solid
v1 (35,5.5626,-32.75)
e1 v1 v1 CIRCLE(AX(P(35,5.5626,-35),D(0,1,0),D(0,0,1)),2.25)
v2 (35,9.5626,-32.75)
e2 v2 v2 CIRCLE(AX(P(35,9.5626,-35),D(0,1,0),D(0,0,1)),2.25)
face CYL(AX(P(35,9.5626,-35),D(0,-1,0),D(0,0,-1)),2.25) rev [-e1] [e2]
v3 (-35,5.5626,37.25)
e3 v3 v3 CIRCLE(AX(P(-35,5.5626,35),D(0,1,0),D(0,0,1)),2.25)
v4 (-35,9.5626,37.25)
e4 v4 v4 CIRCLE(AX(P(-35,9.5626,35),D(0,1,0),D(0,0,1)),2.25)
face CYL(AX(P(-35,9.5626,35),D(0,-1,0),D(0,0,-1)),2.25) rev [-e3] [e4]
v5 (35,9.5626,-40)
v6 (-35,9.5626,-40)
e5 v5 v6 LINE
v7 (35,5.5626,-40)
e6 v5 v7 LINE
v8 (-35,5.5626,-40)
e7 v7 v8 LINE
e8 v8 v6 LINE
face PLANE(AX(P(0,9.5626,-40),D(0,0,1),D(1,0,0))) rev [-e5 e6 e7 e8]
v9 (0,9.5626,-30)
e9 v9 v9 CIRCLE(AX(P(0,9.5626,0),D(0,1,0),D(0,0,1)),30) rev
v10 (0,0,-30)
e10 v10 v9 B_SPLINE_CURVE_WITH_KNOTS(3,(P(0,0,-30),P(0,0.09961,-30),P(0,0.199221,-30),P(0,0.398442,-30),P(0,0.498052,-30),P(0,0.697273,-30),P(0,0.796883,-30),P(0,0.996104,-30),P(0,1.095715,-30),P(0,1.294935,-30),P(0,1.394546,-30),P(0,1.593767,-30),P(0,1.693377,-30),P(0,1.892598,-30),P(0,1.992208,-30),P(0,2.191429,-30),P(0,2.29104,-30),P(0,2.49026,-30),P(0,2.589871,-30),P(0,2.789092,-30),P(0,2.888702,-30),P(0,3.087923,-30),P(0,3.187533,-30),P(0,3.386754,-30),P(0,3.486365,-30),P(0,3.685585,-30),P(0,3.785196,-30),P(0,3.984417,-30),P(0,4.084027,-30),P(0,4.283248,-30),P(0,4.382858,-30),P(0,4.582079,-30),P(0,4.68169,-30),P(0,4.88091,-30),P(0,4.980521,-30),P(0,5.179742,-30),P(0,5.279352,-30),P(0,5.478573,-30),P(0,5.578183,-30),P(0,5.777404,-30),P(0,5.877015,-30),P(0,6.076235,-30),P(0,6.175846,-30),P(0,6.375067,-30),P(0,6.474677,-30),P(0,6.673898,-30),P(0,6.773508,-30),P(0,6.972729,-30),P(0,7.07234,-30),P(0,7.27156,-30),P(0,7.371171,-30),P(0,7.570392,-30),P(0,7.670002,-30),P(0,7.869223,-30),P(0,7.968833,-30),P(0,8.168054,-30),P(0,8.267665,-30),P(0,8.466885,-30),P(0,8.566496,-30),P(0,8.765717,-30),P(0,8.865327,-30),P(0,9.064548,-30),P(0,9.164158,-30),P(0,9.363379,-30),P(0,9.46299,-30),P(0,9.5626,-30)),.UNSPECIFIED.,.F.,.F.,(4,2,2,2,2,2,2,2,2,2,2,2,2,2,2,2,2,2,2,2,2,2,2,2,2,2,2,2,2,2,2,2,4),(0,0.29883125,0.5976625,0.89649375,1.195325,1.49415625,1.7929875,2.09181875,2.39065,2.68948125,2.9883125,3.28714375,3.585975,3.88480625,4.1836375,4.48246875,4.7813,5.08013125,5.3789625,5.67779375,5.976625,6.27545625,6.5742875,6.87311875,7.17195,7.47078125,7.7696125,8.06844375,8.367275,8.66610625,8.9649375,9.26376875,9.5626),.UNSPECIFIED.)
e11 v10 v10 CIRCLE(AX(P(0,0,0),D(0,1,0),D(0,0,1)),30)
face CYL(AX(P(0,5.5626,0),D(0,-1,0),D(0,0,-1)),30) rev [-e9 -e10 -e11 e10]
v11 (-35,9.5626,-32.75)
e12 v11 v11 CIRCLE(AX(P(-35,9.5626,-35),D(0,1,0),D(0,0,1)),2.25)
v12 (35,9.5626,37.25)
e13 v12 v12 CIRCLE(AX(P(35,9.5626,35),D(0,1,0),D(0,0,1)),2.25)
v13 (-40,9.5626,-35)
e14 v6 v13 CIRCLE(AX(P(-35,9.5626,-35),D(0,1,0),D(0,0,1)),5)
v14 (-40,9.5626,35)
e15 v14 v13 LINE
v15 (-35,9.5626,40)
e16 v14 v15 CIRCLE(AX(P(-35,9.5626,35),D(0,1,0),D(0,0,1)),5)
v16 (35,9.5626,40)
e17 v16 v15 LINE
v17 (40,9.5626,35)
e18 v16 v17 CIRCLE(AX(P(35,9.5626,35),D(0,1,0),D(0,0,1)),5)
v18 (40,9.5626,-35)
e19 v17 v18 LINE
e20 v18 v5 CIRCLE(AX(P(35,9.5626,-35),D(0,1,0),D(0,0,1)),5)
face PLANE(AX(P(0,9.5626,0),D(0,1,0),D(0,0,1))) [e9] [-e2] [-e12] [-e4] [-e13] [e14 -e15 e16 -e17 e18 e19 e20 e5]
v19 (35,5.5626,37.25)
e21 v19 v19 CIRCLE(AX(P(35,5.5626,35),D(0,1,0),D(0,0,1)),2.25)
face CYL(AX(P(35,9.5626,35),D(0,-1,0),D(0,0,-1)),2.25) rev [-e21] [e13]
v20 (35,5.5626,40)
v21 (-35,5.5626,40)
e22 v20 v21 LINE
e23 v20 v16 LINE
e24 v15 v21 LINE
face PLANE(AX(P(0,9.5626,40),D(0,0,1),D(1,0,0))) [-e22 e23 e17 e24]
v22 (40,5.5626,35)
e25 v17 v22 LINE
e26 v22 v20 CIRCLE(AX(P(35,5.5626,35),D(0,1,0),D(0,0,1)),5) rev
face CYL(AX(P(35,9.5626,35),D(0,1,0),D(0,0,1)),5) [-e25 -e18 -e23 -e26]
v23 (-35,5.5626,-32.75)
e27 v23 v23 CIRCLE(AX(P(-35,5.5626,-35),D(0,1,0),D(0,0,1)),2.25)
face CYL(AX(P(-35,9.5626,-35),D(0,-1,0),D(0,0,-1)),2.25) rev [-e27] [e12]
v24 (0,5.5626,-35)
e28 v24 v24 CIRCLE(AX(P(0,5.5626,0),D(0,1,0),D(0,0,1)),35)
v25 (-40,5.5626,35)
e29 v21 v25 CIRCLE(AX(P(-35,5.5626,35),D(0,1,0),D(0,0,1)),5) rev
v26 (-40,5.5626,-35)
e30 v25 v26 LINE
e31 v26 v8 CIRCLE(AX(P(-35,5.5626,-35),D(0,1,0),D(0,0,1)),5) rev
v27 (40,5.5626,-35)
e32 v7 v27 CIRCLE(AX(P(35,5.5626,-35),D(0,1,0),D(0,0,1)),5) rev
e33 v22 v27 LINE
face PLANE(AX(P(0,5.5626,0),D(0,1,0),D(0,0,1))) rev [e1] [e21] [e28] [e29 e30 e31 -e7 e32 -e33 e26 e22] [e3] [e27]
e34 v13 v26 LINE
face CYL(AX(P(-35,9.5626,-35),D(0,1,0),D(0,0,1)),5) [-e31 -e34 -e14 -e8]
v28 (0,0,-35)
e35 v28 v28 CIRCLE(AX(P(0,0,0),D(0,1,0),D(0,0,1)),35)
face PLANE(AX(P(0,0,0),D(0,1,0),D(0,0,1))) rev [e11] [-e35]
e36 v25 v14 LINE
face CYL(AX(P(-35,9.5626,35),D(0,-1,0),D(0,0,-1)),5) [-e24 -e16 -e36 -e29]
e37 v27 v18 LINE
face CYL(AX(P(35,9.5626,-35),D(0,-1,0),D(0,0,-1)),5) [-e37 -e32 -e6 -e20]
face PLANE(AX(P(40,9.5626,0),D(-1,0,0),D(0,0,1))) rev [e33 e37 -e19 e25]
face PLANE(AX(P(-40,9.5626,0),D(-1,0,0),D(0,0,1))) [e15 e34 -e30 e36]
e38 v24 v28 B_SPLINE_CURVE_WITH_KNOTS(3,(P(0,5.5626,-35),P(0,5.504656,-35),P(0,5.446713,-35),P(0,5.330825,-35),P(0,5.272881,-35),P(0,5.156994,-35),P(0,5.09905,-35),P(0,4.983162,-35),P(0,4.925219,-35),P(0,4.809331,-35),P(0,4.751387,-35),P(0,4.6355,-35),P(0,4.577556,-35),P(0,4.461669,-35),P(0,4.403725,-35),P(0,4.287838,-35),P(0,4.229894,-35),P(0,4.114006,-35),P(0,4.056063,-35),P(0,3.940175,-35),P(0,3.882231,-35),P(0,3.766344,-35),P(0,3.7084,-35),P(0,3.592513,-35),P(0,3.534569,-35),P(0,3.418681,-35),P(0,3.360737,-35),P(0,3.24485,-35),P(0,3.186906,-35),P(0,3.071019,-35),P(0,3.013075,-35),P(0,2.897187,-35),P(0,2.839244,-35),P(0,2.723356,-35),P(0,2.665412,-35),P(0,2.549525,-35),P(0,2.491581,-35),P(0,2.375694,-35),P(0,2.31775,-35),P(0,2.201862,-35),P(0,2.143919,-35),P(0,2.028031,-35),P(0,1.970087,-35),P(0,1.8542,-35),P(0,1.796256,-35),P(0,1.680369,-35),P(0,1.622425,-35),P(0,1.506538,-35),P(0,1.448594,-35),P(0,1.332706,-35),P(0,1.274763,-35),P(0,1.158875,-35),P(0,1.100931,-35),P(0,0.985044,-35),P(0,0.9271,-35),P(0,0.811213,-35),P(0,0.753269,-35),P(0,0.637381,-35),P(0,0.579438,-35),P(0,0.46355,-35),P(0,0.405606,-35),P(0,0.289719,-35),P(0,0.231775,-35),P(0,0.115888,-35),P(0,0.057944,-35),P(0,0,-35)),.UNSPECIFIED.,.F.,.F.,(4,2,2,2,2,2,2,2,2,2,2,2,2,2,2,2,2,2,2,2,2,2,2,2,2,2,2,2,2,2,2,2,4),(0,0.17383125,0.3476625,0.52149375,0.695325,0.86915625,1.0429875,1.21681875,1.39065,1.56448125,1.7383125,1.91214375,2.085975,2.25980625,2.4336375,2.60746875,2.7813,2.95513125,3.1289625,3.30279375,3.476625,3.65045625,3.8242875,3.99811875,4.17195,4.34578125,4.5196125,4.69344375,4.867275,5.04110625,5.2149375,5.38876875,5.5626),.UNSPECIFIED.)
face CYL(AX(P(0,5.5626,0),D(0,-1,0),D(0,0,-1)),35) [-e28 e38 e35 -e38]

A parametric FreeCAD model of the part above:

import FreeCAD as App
import Part
import Sketcher


def edges_at(feature, points):
    """Names of the edges that pass closest to the given points."""
    edges = feature.Shape.Edges
    near = lambda p: min(range(len(edges)), key=lambda i: edges[i].distToShape(Part.Vertex(*p))[0])
    return sorted({f"Edge{near(p) + 1}" for p in points})


def add_polygon(sketch, points):
    """Adds a closed chain of lines whose ends are joined by coincident constraints."""
    first, n = sketch.GeometryCount, len(points)
    for a, b in zip(points, points[1:] + points[:1]):
        sketch.addGeometry(Part.LineSegment(App.Vector(*a, 0), App.Vector(*b, 0)), False)
    for i in range(n):
        sketch.addConstraint(Sketcher.Constraint("Coincident", first + i, 2, first + (i + 1) % n, 1))

doc = App.newDocument("Part")
body = doc.addObject("PartDesign::Body", "Body")

# Sketch on XZ plane
sketch1 = body.newObject("Sketcher::SketchObject", "Sketch")
sketch1.AttachmentSupport = (doc.getObject("XZ_Plane"), [""])
sketch1.MapMode = "FlatFace"
sketch1.addGeometry([
    Part.Circle(App.Vector(0, 0, 0), App.Vector(0, 0, 1), 35),
    Part.Circle(App.Vector(0, 0, 0), App.Vector(0, 0, 1), 30),
], False)
sketch1.addConstraint([
    Sketcher.Constraint("Coincident", 0, 3, -1, 1),
    Sketcher.Constraint("Coincident", 1, 3, -1, 1),
    Sketcher.Constraint("Diameter", 0, 70.0),
    Sketcher.Constraint("Diameter", 1, 60.0),
])
pad1 = body.newObject("PartDesign::Pad", "Pad")
pad1.Profile = sketch1
pad1.Length = 5.5626
pad1.Reversed = True

# Sketch on XZ plane
sketch2 = body.newObject("Sketcher::SketchObject", "Sketch001")
sketch2.AttachmentSupport = (doc.getObject("XZ_Plane"), [""])
sketch2.MapMode = "FlatFace"
sketch2.AttachmentOffset = App.Placement(App.Vector(0, 0, -5.5626), App.Rotation())
add_polygon(sketch2, [(-40, -40), (-40, 40), (40, 40), (40, -40)])  # lines 0-3
sketch2.addGeometry(Part.Circle(App.Vector(-35, 35, 0), App.Vector(0, 0, 1), 2.2), False)  # 4
sketch2.addGeometry(Part.Circle(App.Vector(35, 35, 0), App.Vector(0, 0, 1), 2.2), False)  # 5
sketch2.addGeometry(Part.Circle(App.Vector(-35, -35, 0), App.Vector(0, 0, 1), 2.2), False)  # 6
sketch2.addGeometry(Part.Circle(App.Vector(0, 0, 0), App.Vector(0, 0, 1), 30), False)  # 7
sketch2.addGeometry(Part.Circle(App.Vector(35, -35, 0), App.Vector(0, 0, 1), 2.2), False)  # 8
sketch2.addConstraint([
    Sketcher.Constraint("Vertical", 0),
    Sketcher.Constraint("Horizontal", 1),
    Sketcher.Constraint("Vertical", 2),
    Sketcher.Constraint("Horizontal", 3),
    Sketcher.Constraint("Coincident", 7, 3, -1, 1),
    Sketcher.Constraint("Equal", 4, 5),
    Sketcher.Constraint("Equal", 5, 6),
    Sketcher.Constraint("Equal", 6, 8),
    Sketcher.Constraint("Symmetric", 5, 3, 6, 3, -1, 1),
    Sketcher.Constraint("Symmetric", 4, 3, 8, 3, -1, 1),
    Sketcher.Constraint("Symmetric", 0, 2, 2, 2, -1, 1),
    Sketcher.Constraint("Symmetric", 4, 3, 5, 3, -2),
    Sketcher.Constraint("Equal", 3, 0),
    Sketcher.Constraint("Diameter", 7, 60.0),
    Sketcher.Constraint("Diameter", 4, 4.5),
    Sketcher.Constraint("DistanceX", 1, 1, 1, 2, 80.0),
    Sketcher.Constraint("DistanceX", 4, 3, -1, 1, 35.0),
    Sketcher.Constraint("DistanceY", -1, 1, 4, 3, 35.0),
])
pad2 = body.newObject("PartDesign::Pad", "Pad001")
pad2.Profile = sketch2
pad2.Length = 4
pad2.Reversed = True
doc.recompute()

fillet = body.newObject("PartDesign::Fillet", "Fillet")
fillet.Base = (pad2, edges_at(pad2, [
    (-40, 7.563, -40),
    (-40, 7.563, 40),
    (40, 7.563, 40),
    (40, 7.563, -40),
]))
fillet.Radius = 5

doc.recompute()
